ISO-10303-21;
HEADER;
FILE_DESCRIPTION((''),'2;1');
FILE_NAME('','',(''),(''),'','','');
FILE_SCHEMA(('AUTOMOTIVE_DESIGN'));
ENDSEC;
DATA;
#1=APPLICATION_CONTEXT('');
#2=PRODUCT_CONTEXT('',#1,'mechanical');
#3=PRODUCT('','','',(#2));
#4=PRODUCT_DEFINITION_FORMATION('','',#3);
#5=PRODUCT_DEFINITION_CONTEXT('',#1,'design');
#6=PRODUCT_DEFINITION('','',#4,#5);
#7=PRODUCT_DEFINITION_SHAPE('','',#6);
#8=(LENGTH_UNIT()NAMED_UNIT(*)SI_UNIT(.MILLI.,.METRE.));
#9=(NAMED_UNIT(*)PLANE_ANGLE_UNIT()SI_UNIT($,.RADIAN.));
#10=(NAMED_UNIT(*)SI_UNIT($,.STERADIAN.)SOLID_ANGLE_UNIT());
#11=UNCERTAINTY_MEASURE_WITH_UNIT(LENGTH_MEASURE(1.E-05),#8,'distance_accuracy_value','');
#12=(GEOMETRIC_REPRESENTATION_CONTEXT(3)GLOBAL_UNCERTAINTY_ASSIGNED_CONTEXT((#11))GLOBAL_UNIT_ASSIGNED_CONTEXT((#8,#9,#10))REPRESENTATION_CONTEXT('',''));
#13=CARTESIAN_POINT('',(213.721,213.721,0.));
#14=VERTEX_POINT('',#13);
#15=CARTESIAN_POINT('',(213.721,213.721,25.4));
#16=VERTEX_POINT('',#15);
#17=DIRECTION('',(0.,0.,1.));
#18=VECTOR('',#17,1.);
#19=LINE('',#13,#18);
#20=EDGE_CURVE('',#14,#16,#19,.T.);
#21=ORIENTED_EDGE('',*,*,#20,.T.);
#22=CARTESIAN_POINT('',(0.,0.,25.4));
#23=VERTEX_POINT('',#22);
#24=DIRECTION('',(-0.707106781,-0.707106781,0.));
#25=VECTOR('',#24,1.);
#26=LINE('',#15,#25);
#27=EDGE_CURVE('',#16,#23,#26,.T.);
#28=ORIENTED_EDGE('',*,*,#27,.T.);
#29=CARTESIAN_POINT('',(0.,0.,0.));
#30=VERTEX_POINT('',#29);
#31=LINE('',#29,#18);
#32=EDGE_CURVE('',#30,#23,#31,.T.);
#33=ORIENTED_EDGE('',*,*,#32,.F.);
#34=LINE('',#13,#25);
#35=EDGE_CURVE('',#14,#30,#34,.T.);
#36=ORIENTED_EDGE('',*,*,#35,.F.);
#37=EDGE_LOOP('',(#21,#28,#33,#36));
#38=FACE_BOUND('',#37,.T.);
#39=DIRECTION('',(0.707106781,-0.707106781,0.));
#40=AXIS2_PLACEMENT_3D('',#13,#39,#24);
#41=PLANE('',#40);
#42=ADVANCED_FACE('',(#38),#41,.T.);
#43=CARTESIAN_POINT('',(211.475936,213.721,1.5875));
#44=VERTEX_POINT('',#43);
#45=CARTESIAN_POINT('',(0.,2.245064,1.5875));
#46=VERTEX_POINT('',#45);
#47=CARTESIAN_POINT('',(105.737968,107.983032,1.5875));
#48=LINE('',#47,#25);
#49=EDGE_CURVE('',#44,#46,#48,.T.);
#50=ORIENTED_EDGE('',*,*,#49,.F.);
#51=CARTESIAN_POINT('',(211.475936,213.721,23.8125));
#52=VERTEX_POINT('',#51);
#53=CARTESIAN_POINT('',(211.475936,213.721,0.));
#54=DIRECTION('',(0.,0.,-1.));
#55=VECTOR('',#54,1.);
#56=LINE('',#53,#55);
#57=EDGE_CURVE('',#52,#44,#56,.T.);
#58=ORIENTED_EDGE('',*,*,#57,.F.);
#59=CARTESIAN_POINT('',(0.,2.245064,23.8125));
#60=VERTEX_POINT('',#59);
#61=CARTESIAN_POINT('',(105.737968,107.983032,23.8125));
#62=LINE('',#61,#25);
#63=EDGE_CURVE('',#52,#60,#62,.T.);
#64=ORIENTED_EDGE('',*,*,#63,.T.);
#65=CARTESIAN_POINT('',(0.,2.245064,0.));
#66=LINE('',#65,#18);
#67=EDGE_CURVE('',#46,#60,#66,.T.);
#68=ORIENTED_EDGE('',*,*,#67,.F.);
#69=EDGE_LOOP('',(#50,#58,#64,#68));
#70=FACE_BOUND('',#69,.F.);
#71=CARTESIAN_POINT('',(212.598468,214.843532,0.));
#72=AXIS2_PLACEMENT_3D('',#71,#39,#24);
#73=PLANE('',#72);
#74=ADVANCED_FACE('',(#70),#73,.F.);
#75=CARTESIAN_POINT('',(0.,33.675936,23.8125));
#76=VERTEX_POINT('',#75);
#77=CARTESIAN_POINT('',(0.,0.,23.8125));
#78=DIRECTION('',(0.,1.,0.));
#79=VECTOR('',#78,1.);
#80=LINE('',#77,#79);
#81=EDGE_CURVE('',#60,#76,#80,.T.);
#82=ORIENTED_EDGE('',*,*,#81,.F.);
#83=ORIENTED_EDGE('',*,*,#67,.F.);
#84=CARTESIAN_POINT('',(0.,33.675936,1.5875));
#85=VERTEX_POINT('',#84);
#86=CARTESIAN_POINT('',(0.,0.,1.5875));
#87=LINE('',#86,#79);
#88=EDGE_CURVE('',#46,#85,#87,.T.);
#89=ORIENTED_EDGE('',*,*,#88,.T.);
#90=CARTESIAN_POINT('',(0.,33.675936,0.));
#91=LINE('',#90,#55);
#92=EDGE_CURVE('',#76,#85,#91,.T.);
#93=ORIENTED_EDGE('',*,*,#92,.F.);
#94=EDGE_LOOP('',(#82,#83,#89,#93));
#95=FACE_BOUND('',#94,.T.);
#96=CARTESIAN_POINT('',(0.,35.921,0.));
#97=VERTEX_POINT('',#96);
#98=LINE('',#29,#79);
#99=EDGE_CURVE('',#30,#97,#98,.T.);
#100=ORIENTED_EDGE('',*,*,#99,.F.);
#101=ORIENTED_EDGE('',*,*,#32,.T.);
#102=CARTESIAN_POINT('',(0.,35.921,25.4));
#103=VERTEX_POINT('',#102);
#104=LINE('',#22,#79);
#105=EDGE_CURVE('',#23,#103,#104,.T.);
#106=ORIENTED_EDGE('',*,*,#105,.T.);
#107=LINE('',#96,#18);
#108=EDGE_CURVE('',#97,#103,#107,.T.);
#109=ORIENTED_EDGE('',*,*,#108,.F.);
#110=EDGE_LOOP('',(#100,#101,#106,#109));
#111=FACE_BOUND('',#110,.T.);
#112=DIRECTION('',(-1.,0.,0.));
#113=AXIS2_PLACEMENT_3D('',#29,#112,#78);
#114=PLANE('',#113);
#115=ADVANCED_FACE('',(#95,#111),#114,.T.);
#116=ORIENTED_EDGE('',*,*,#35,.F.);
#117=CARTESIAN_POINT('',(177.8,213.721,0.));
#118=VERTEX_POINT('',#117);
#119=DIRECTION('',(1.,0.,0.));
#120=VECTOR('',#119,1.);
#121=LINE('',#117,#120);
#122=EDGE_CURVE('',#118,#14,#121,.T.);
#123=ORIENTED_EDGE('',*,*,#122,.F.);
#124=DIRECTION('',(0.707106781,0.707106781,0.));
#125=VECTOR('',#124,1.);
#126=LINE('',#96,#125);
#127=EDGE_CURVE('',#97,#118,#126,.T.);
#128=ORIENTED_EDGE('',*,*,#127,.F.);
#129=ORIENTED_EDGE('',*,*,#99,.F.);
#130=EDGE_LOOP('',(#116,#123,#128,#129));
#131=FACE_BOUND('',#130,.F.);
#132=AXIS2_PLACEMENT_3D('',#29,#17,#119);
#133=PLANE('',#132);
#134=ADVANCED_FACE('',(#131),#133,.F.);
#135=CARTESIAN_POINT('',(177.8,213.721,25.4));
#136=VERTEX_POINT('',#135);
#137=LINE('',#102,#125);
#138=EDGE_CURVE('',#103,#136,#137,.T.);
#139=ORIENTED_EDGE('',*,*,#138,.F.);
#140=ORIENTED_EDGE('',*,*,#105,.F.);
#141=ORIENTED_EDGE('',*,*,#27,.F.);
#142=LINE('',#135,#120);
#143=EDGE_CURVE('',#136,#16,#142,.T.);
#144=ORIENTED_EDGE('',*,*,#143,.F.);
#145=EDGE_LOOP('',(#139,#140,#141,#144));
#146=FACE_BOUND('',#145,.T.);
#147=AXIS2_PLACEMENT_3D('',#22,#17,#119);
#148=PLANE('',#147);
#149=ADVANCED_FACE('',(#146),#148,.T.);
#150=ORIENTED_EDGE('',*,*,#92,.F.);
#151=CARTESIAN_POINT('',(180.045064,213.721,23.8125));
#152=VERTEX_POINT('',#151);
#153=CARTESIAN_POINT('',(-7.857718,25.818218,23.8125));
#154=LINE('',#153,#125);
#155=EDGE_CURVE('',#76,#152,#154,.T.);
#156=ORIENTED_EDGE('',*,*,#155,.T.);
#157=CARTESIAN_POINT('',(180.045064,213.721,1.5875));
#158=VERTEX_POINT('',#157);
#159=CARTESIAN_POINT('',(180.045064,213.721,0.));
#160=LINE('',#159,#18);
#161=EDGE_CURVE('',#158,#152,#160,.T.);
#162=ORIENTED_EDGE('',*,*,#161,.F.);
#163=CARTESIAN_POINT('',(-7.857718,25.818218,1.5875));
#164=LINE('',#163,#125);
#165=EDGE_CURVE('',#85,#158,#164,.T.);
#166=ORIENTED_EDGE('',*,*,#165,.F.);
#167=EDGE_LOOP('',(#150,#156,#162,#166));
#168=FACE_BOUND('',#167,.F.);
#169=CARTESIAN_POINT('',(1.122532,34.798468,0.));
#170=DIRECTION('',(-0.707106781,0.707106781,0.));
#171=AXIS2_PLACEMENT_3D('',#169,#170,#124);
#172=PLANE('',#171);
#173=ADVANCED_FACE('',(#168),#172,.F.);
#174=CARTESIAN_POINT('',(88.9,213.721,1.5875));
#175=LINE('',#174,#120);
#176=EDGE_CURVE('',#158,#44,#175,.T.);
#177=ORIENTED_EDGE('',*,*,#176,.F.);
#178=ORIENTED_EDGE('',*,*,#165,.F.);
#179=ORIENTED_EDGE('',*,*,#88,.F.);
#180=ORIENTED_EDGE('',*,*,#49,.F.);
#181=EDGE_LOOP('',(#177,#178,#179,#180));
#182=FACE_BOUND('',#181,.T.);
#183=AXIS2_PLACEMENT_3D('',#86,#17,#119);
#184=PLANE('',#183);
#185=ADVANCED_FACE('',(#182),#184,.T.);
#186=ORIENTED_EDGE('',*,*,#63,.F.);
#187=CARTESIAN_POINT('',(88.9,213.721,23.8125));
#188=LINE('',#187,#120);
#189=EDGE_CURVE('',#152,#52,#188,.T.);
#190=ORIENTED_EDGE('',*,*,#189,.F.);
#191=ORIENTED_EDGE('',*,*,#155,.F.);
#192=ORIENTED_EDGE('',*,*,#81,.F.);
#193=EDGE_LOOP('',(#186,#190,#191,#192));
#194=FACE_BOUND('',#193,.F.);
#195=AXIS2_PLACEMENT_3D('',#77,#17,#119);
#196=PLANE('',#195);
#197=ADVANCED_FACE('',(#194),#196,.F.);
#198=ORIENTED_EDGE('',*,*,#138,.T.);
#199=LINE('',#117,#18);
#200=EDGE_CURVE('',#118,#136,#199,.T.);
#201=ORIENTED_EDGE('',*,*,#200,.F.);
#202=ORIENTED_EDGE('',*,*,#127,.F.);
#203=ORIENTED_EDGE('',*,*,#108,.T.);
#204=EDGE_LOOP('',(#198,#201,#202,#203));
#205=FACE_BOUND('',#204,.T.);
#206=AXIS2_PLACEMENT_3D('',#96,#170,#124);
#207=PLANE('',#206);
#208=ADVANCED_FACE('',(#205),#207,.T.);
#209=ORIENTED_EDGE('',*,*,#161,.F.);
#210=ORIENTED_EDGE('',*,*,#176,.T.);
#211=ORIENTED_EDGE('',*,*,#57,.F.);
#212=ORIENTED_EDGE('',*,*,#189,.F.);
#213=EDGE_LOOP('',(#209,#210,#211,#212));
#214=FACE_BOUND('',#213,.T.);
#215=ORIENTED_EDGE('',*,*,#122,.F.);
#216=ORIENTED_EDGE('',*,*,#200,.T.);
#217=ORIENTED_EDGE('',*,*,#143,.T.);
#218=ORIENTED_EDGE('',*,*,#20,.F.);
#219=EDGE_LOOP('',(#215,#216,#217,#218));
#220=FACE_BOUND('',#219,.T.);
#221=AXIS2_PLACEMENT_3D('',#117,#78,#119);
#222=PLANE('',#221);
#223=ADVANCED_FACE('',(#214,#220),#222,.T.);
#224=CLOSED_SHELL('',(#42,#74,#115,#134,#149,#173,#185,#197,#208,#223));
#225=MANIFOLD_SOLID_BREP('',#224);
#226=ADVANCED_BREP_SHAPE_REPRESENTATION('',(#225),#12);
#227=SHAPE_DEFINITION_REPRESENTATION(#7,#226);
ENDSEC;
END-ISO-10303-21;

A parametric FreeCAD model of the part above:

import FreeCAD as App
import Part
import Sketcher
from FreeCAD import Vector
Q = App.Units.Quantity


def faces_at(feature, points):
    """Names of the faces that lie closest to the given points."""
    faces = feature.Shape.Faces
    near = lambda p: min(range(len(faces)), key=lambda i: faces[i].distToShape(Part.Vertex(*p))[0])
    return sorted({f"Face{near(p) + 1}" for p in points})

doc = App.newDocument("Part")
params = doc.addObject("Spreadsheet::Sheet", "Params")
for row, (alias, value) in enumerate([
    ("pad1_length", "1 in"),
    ("thickness_wall", "0.0625 in"),
], start=1):
    params.set(f"A{row}", alias)
    params.set(f"B{row}", "=" + value)
    params.setAlias(f"B{row}", alias)

body = doc.addObject("PartDesign::Body", "Body")

sketch1 = body.newObject("Sketcher::SketchObject", "Sketch")
sketch1.AttachmentSupport = (doc.getObject("XY_Plane"), [""])
sketch1.MapMode = "FlatFace"
sketch1.addGeometry([
    Part.LineSegment(Vector(0, 36, 0), Vector(0, 0, 0)),
    Part.LineSegment(Vector(0, 0, 0), Vector(214, 214, 0)),
    Part.LineSegment(Vector(214, 214, 0), Vector(178, 214, 0)),
    Part.LineSegment(Vector(178, 214, 0), Vector(0, 36, 0)),
], False)
sketch1.addConstraint([
    Sketcher.Constraint("Coincident", 0, 2, 1, 1),
    Sketcher.Constraint("Coincident", 1, 2, 2, 1),
    Sketcher.Constraint("Coincident", 2, 2, 3, 1),
    Sketcher.Constraint("Coincident", 3, 2, 0, 1),
    Sketcher.Constraint("Vertical", 0),
    Sketcher.Constraint("Horizontal", 2),
    Sketcher.Constraint("Coincident", 0, 2, -1, 1),
    Sketcher.Constraint("Parallel", 1, 3),
    Sketcher.Constraint("Equal", 2, 0),
    Sketcher.Constraint("DistanceX", -1, 1, 2, 2, Q("7 in")),
    Sketcher.Constraint("Distance", 1, Q("11.8995 in")),
])
pad1 = body.newObject("PartDesign::Pad", "Pad")
pad1.Profile = sketch1
pad1.setExpression("Length", "Params.pad1_length")
doc.recompute()

thickness = body.newObject("PartDesign::Thickness", "Thickness")
thickness.Base = (pad1, faces_at(pad1, [(0, 11.974, 8.467), (189.774, 213.721, 16.933)]))
thickness.setExpression("Value", "Params.thickness_wall")
thickness.Reversed = True
thickness.Join = "Intersection"

doc.recompute()
